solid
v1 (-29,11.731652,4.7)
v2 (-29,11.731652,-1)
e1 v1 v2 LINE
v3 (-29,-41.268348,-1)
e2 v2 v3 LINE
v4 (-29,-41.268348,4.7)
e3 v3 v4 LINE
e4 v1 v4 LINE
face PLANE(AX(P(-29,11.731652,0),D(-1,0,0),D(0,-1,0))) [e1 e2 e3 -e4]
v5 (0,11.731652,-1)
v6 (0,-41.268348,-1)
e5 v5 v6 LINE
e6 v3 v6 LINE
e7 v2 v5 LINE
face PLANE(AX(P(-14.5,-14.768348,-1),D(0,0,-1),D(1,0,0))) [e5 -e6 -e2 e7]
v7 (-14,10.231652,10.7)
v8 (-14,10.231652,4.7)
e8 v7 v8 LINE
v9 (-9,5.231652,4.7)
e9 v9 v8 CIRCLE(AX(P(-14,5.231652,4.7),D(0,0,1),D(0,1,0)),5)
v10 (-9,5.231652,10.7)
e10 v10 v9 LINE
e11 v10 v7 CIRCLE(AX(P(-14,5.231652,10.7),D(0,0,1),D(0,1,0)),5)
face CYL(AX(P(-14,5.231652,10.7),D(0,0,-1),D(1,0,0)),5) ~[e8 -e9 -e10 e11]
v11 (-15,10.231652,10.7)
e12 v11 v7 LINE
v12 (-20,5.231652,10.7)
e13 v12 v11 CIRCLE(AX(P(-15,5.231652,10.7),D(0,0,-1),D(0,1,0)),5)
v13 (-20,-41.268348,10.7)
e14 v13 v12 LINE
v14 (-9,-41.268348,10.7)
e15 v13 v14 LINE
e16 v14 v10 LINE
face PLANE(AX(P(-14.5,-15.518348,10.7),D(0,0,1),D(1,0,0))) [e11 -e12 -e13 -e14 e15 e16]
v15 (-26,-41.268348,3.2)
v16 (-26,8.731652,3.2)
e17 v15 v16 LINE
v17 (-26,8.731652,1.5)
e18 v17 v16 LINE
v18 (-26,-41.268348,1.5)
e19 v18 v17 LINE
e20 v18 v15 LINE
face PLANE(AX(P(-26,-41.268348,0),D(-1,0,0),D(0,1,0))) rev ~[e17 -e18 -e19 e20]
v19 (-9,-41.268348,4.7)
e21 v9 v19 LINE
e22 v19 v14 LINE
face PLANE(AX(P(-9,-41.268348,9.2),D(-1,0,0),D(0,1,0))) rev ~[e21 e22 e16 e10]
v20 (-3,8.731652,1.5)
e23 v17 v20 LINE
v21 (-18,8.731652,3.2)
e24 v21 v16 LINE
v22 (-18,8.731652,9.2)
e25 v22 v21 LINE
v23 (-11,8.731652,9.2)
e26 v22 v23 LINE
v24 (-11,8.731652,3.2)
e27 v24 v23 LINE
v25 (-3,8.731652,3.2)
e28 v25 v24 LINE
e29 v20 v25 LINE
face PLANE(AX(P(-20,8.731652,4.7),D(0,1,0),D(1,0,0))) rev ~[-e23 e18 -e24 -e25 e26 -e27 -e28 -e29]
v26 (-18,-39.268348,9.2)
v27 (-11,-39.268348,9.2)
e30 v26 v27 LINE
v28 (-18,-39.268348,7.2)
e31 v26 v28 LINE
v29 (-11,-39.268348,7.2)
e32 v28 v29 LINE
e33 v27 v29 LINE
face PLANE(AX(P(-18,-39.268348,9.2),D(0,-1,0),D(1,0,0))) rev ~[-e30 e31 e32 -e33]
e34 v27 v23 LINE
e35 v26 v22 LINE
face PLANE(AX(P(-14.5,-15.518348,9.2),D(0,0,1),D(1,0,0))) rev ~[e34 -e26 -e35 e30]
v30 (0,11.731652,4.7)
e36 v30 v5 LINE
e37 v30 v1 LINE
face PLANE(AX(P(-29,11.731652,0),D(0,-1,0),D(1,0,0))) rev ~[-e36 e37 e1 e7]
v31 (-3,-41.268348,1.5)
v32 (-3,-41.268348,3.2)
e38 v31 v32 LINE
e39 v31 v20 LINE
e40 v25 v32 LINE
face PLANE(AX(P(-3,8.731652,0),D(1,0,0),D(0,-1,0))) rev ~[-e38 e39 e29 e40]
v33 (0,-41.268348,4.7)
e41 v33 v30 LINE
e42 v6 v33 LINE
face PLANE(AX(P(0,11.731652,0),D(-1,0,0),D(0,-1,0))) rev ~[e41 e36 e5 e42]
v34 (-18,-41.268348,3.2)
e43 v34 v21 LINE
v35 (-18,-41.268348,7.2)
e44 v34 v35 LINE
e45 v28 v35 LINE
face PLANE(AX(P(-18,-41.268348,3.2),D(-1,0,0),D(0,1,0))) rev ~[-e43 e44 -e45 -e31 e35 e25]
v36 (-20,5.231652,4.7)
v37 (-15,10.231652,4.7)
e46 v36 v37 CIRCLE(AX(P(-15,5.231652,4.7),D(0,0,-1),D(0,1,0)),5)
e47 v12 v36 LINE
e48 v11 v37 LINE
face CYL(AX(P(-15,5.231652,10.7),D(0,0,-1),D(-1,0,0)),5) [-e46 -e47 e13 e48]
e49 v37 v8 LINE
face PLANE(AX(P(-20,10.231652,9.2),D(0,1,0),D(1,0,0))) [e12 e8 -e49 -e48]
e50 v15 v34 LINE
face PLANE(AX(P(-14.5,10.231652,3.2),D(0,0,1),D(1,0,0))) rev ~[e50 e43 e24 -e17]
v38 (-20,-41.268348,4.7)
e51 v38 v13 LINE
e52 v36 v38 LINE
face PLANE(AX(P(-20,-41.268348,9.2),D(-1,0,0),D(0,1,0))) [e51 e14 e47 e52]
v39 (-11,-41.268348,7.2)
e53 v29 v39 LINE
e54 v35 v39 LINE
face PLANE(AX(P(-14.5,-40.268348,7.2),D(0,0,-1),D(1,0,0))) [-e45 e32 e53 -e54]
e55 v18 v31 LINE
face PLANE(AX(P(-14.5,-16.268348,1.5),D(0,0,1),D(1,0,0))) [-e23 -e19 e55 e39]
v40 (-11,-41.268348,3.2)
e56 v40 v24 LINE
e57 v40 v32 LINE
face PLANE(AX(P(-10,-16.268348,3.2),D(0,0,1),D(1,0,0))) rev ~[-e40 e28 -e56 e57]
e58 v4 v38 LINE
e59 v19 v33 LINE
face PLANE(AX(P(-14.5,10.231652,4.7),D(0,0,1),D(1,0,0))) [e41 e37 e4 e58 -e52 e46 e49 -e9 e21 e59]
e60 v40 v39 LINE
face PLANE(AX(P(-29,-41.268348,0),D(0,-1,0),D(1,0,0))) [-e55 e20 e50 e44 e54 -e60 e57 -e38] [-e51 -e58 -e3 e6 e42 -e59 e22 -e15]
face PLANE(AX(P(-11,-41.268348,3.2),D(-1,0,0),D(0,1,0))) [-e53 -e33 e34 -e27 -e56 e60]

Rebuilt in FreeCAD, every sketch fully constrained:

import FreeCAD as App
import Part
import Sketcher

V = App.Vector
Q = App.Units.Quantity


def edges_at(feature, points):
    """Names of the edges that pass closest to the given points."""
    edges = feature.Shape.Edges
    near = lambda p: min(range(len(edges)), key=lambda i: edges[i].distToShape(Part.Vertex(*p))[0])
    return sorted({f"Edge{near(p) + 1}" for p in points})

doc = App.newDocument("Part")
params = doc.addObject("Spreadsheet::Sheet", "Params")
for row, (alias, value) in enumerate([
    ("sketch1_width", "23 mm"),
    ("sketch1_height", "50 mm"),
    ("pad1_length", "1.5 mm"),
    ("sketch2_width", "23 mm"),
    ("sketch2_width2", "3 mm"),
    ("sketch2_height", "50 mm"),
    ("sketch2_height2", "53 mm"),
    ("pad2_length", "3.2 mm"),
    ("sketch3_width", "9 mm"),
    ("sketch3_width2", "11 mm"),
    ("sketch3_height", "53 mm"),
    ("sketch3_height2", "50 mm"),
    ("pad3_length", "1.5 mm"),
    ("sketch4_width", "2 mm"),
    ("sketch4_height", "50 mm"),
    ("pad4_length", "6 mm"),
    ("sketch5_width", "11 mm"),
    ("sketch5_height", "1.5 mm"),
    ("pad5_length", "4.5 mm"),
    ("sketch6_width", "11 mm"),
    ("sketch6_height", "51.5 mm"),
    ("pad6_length", "1.5 mm"),
    ("fillet_radius", "5 mm"),
    ("sketch7_width", "29 mm"),
    ("sketch7_height", "53 mm"),
    ("pad7_length", "1 mm"),
    ("sketch8_width", "7 mm"),
    ("sketch8_height", "2 mm"),
    ("pad8_length", "2 mm"),
], start=1):
    params.set(f"A{row}", alias)
    params.set(f"B{row}", "=" + value)
    params.setAlias(f"B{row}", alias)

body = doc.addObject("PartDesign::Body", "Body")

# Sketch on XY plane
sketch1 = doc.addObject("Sketcher::SketchObject", "Sketch")
body.addObject(sketch1)
sketch1.AttachmentSupport = (doc.XY_Plane, [""])
sketch1.MapMode = "FlatFace"
sketch1.addGeometry(Part.LineSegment(V(-26, 9, 0), V(-26, -41, 0)), False)
sketch1.addGeometry(Part.LineSegment(V(-26, -41, 0), V(-3, -41, 0)), False)
sketch1.addGeometry(Part.LineSegment(V(-3, -41, 0), V(-3, 9, 0)), False)
sketch1.addGeometry(Part.LineSegment(V(-3, 9, 0), V(-26, 9, 0)), False)
sketch1.addConstraint(Sketcher.Constraint("Coincident", 0, 2, 1, 1))
sketch1.addConstraint(Sketcher.Constraint("Coincident", 1, 2, 2, 1))
sketch1.addConstraint(Sketcher.Constraint("Coincident", 2, 2, 3, 1))
sketch1.addConstraint(Sketcher.Constraint("Coincident", 3, 2, 0, 1))
sketch1.addConstraint(Sketcher.Constraint("Vertical", 0))
sketch1.addConstraint(Sketcher.Constraint("Horizontal", 1))
sketch1.addConstraint(Sketcher.Constraint("Vertical", 2))
sketch1.addConstraint(Sketcher.Constraint("Horizontal", 3))
sketch1.addConstraint(Sketcher.Constraint("DistanceX", 1, 1, 1, 2, Q("23 mm")))
sketch1.addConstraint(Sketcher.Constraint("DistanceY", 0, 2, 0, 1, Q("50 mm")))
sketch1.addConstraint(Sketcher.Constraint("DistanceX", 0, 2, -1, 1, Q("26 mm")))
sketch1.addConstraint(Sketcher.Constraint("DistanceY", 0, 2, -1, 1, Q("41.268348 mm")))
sketch1.setExpression("Constraints[8]", "Params.sketch1_width")
sketch1.setExpression("Constraints[9]", "Params.sketch1_height")
pad1 = doc.addObject("PartDesign::Pad", "Pad")
body.addObject(pad1)
pad1.Profile = sketch1
pad1.setExpression("Length", "Params.pad1_length")

# Sketch on XY plane
sketch2 = doc.addObject("Sketcher::SketchObject", "Sketch001")
body.addObject(sketch2)
sketch2.AttachmentSupport = (doc.XY_Plane, [""])
sketch2.MapMode = "FlatFace"
sketch2.addGeometry(Part.LineSegment(V(-26, -41.3, 0), V(-26, 8.7, 0)), False)
sketch2.addGeometry(Part.LineSegment(V(-26, 8.7, 0), V(-3, 8.7, 0)), False)
sketch2.addGeometry(Part.LineSegment(V(-3, 8.7, 0), V(-3, -41.3, 0)), False)
sketch2.addGeometry(Part.LineSegment(V(-3, -41.3, 0), V(0, -41.3, 0)), False)
sketch2.addGeometry(Part.LineSegment(V(0, -41.3, 0), V(0, 11.7, 0)), False)
sketch2.addGeometry(Part.LineSegment(V(0, 11.7, 0), V(-29, 11.7, 0)), False)
sketch2.addGeometry(Part.LineSegment(V(-29, 11.7, 0), V(-29, -41.3, 0)), False)
sketch2.addGeometry(Part.LineSegment(V(-29, -41.3, 0), V(-26, -41.3, 0)), False)
sketch2.addConstraint(Sketcher.Constraint("Coincident", 0, 2, 1, 1))
sketch2.addConstraint(Sketcher.Constraint("Coincident", 1, 2, 2, 1))
sketch2.addConstraint(Sketcher.Constraint("Coincident", 2, 2, 3, 1))
sketch2.addConstraint(Sketcher.Constraint("Coincident", 3, 2, 4, 1))
sketch2.addConstraint(Sketcher.Constraint("Coincident", 4, 2, 5, 1))
sketch2.addConstraint(Sketcher.Constraint("Coincident", 5, 2, 6, 1))
sketch2.addConstraint(Sketcher.Constraint("Coincident", 6, 2, 7, 1))
sketch2.addConstraint(Sketcher.Constraint("Coincident", 7, 2, 0, 1))
sketch2.addConstraint(Sketcher.Constraint("Vertical", 0))
sketch2.addConstraint(Sketcher.Constraint("Horizontal", 1))
sketch2.addConstraint(Sketcher.Constraint("Vertical", 2))
sketch2.addConstraint(Sketcher.Constraint("Horizontal", 3))
sketch2.addConstraint(Sketcher.Constraint("Vertical", 4))
sketch2.addConstraint(Sketcher.Constraint("Horizontal", 5))
sketch2.addConstraint(Sketcher.Constraint("Vertical", 6))
sketch2.addConstraint(Sketcher.Constraint("Horizontal", 7))
sketch2.addConstraint(Sketcher.Constraint("PointOnObject", 3, 2, -2))
sketch2.addConstraint(Sketcher.Constraint("Horizontal", 3, 2, 6, 2))
sketch2.addConstraint(Sketcher.Constraint("Equal", 3, 7))
sketch2.addConstraint(Sketcher.Constraint("DistanceX", 1, 1, 1, 2, Q("23 mm")))
sketch2.addConstraint(Sketcher.Constraint("DistanceX", 3, 1, 3, 2, Q("3 mm")))
sketch2.addConstraint(Sketcher.Constraint("DistanceY", 0, 1, 0, 2, Q("50 mm")))
sketch2.addConstraint(Sketcher.Constraint("DistanceY", 4, 1, 4, 2, Q("53 mm")))
sketch2.addConstraint(Sketcher.Constraint("DistanceY", -1, 1, 0, 2, Q("8.731652 mm")))
sketch2.setExpression("Constraints[19]", "Params.sketch2_width")
sketch2.setExpression("Constraints[20]", "Params.sketch2_width2")
sketch2.setExpression("Constraints[21]", "Params.sketch2_height")
sketch2.setExpression("Constraints[22]", "Params.sketch2_height2")
pad2 = doc.addObject("PartDesign::Pad", "Pad001")
body.addObject(pad2)
pad2.Profile = sketch2
pad2.setExpression("Length", "Params.pad2_length")

# Sketch on XY plane
sketch3 = doc.addObject("Sketcher::SketchObject", "Sketch002")
body.addObject(sketch3)
sketch3.AttachmentSupport = (doc.XY_Plane, [""])
sketch3.MapMode = "FlatFace"
sketch3.AttachmentOffset = App.Placement(V(0, 0, 3.2), App.Rotation())
sketch3.addGeometry(Part.LineSegment(V(-29, 12, 0), V(-29, -41, 0)), False)
sketch3.addGeometry(Part.LineSegment(V(-29, -41, 0), V(-20, -41, 0)), False)
sketch3.addGeometry(Part.LineSegment(V(-20, -41, 0), V(-20, 9, 0)), False)
sketch3.addGeometry(Part.LineSegment(V(-20, 9, 0), V(-9, 9, 0)), False)
sketch3.addGeometry(Part.LineSegment(V(-9, 9, 0), V(-9, -41, 0)), False)
sketch3.addGeometry(Part.LineSegment(V(-9, -41, 0), V(0, -41, 0)), False)
sketch3.addGeometry(Part.LineSegment(V(0, -41, 0), V(0, 12, 0)), False)
sketch3.addGeometry(Part.LineSegment(V(0, 12, 0), V(-29, 12, 0)), False)
sketch3.addConstraint(Sketcher.Constraint("Coincident", 0, 2, 1, 1))
sketch3.addConstraint(Sketcher.Constraint("Coincident", 1, 2, 2, 1))
sketch3.addConstraint(Sketcher.Constraint("Coincident", 2, 2, 3, 1))
sketch3.addConstraint(Sketcher.Constraint("Coincident", 3, 2, 4, 1))
sketch3.addConstraint(Sketcher.Constraint("Coincident", 4, 2, 5, 1))
sketch3.addConstraint(Sketcher.Constraint("Coincident", 5, 2, 6, 1))
sketch3.addConstraint(Sketcher.Constraint("Coincident", 6, 2, 7, 1))
sketch3.addConstraint(Sketcher.Constraint("Coincident", 7, 2, 0, 1))
sketch3.addConstraint(Sketcher.Constraint("Vertical", 0))
sketch3.addConstraint(Sketcher.Constraint("Horizontal", 1))
sketch3.addConstraint(Sketcher.Constraint("Vertical", 2))
sketch3.addConstraint(Sketcher.Constraint("Horizontal", 3))
sketch3.addConstraint(Sketcher.Constraint("Vertical", 4))
sketch3.addConstraint(Sketcher.Constraint("Horizontal", 5))
sketch3.addConstraint(Sketcher.Constraint("Vertical", 6))
sketch3.addConstraint(Sketcher.Constraint("Horizontal", 7))
sketch3.addConstraint(Sketcher.Constraint("PointOnObject", 5, 2, -2))
sketch3.addConstraint(Sketcher.Constraint("Horizontal", 1, 2, 4, 2))
sketch3.addConstraint(Sketcher.Constraint("Equal", 1, 5))
sketch3.addConstraint(Sketcher.Constraint("DistanceX", 1, 1, 1, 2, Q("9 mm")))
sketch3.addConstraint(Sketcher.Constraint("DistanceX", 3, 1, 3, 2, Q("11 mm")))
sketch3.addConstraint(Sketcher.Constraint("DistanceY", 0, 2, 0, 1, Q("53 mm")))
sketch3.addConstraint(Sketcher.Constraint("DistanceY", 2, 1, 2, 2, Q("50 mm")))
sketch3.addConstraint(Sketcher.Constraint("DistanceY", 0, 2, -1, 1, Q("41.268348 mm")))
sketch3.setExpression("Constraints[19]", "Params.sketch3_width")
sketch3.setExpression("Constraints[20]", "Params.sketch3_width2")
sketch3.setExpression("Constraints[21]", "Params.sketch3_height")
sketch3.setExpression("Constraints[22]", "Params.sketch3_height2")
pad3 = doc.addObject("PartDesign::Pad", "Pad002")
body.addObject(pad3)
pad3.Profile = sketch3
pad3.setExpression("Length", "Params.pad3_length")

# Sketch on XY plane
sketch4 = doc.addObject("Sketcher::SketchObject", "Sketch003")
body.addObject(sketch4)
sketch4.AttachmentSupport = (doc.XY_Plane, [""])
sketch4.MapMode = "FlatFace"
sketch4.AttachmentOffset = App.Placement(V(0, 0, 3.2), App.Rotation())
sketch4.addGeometry(Part.LineSegment(V(-11, 8.7, 0), V(-11, -41.3, 0)), False)
sketch4.addGeometry(Part.LineSegment(V(-11, -41.3, 0), V(-9, -41.3, 0)), False)
sketch4.addGeometry(Part.LineSegment(V(-9, -41.3, 0), V(-9, 8.7, 0)), False)
sketch4.addGeometry(Part.LineSegment(V(-9, 8.7, 0), V(-11, 8.7, 0)), False)
sketch4.addGeometry(Part.LineSegment(V(-20, 8.7, 0), V(-20, -41.3, 0)), False)
sketch4.addGeometry(Part.LineSegment(V(-20, -41.3, 0), V(-18, -41.3, 0)), False)
sketch4.addGeometry(Part.LineSegment(V(-18, -41.3, 0), V(-18, 8.7, 0)), False)
sketch4.addGeometry(Part.LineSegment(V(-18, 8.7, 0), V(-20, 8.7, 0)), False)
sketch4.addConstraint(Sketcher.Constraint("Coincident", 0, 2, 1, 1))
sketch4.addConstraint(Sketcher.Constraint("Coincident", 1, 2, 2, 1))
sketch4.addConstraint(Sketcher.Constraint("Coincident", 2, 2, 3, 1))
sketch4.addConstraint(Sketcher.Constraint("Coincident", 3, 2, 0, 1))
sketch4.addConstraint(Sketcher.Constraint("Coincident", 4, 2, 5, 1))
sketch4.addConstraint(Sketcher.Constraint("Coincident", 5, 2, 6, 1))
sketch4.addConstraint(Sketcher.Constraint("Coincident", 6, 2, 7, 1))
sketch4.addConstraint(Sketcher.Constraint("Coincident", 7, 2, 4, 1))
sketch4.addConstraint(Sketcher.Constraint("Vertical", 0))
sketch4.addConstraint(Sketcher.Constraint("Horizontal", 1))
sketch4.addConstraint(Sketcher.Constraint("Vertical", 2))
sketch4.addConstraint(Sketcher.Constraint("Horizontal", 3))
sketch4.addConstraint(Sketcher.Constraint("Vertical", 4))
sketch4.addConstraint(Sketcher.Constraint("Horizontal", 5))
sketch4.addConstraint(Sketcher.Constraint("Vertical", 6))
sketch4.addConstraint(Sketcher.Constraint("Horizontal", 7))
sketch4.addConstraint(Sketcher.Constraint("Horizontal", 1, 2, 4, 2))
sketch4.addConstraint(Sketcher.Constraint("Horizontal", 3, 2, 6, 2))
sketch4.addConstraint(Sketcher.Constraint("Equal", 3, 5))
sketch4.addConstraint(Sketcher.Constraint("DistanceX", 1, 1, 1, 2, Q("2 mm")))
sketch4.addConstraint(Sketcher.Constraint("DistanceY", 0, 2, 0, 1, Q("50 mm")))
sketch4.addConstraint(Sketcher.Constraint("DistanceX", 0, 2, -1, 1, Q("11 mm")))
sketch4.addConstraint(Sketcher.Constraint("DistanceX", 4, 2, -1, 1, Q("20 mm")))
sketch4.addConstraint(Sketcher.Constraint("DistanceY", 0, 2, -1, 1, Q("41.268348 mm")))
sketch4.setExpression("Constraints[19]", "Params.sketch4_width")
sketch4.setExpression("Constraints[20]", "Params.sketch4_height")
pad4 = doc.addObject("PartDesign::Pad", "Pad003")
body.addObject(pad4)
pad4.Profile = sketch4
pad4.setExpression("Length", "Params.pad4_length")

# Sketch on XY plane
sketch5 = doc.addObject("Sketcher::SketchObject", "Sketch004")
body.addObject(sketch5)
sketch5.AttachmentSupport = (doc.XY_Plane, [""])
sketch5.MapMode = "FlatFace"
sketch5.AttachmentOffset = App.Placement(V(0, 0, 4.7), App.Rotation())
sketch5.addGeometry(Part.LineSegment(V(-20, 10.2, 0), V(-20, 8.7, 0)), False)
sketch5.addGeometry(Part.LineSegment(V(-20, 8.7, 0), V(-9, 8.7, 0)), False)
sketch5.addGeometry(Part.LineSegment(V(-9, 8.7, 0), V(-9, 10.2, 0)), False)
sketch5.addGeometry(Part.LineSegment(V(-9, 10.2, 0), V(-20, 10.2, 0)), False)
sketch5.addConstraint(Sketcher.Constraint("Coincident", 0, 2, 1, 1))
sketch5.addConstraint(Sketcher.Constraint("Coincident", 1, 2, 2, 1))
sketch5.addConstraint(Sketcher.Constraint("Coincident", 2, 2, 3, 1))
sketch5.addConstraint(Sketcher.Constraint("Coincident", 3, 2, 0, 1))
sketch5.addConstraint(Sketcher.Constraint("Vertical", 0))
sketch5.addConstraint(Sketcher.Constraint("Horizontal", 1))
sketch5.addConstraint(Sketcher.Constraint("Vertical", 2))
sketch5.addConstraint(Sketcher.Constraint("Horizontal", 3))
sketch5.addConstraint(Sketcher.Constraint("DistanceX", 1, 1, 1, 2, Q("11 mm")))
sketch5.addConstraint(Sketcher.Constraint("DistanceY", 0, 2, 0, 1, Q("1.5 mm")))
sketch5.addConstraint(Sketcher.Constraint("DistanceX", 0, 2, -1, 1, Q("20 mm")))
sketch5.addConstraint(Sketcher.Constraint("DistanceY", -1, 1, 0, 2, Q("8.731652 mm")))
sketch5.setExpression("Constraints[8]", "Params.sketch5_width")
sketch5.setExpression("Constraints[9]", "Params.sketch5_height")
pad5 = doc.addObject("PartDesign::Pad", "Pad004")
body.addObject(pad5)
pad5.Profile = sketch5
pad5.setExpression("Length", "Params.pad5_length")

# Sketch on XY plane
sketch6 = doc.addObject("Sketcher::SketchObject", "Sketch005")
body.addObject(sketch6)
sketch6.AttachmentSupport = (doc.XY_Plane, [""])
sketch6.MapMode = "FlatFace"
sketch6.AttachmentOffset = App.Placement(V(0, 0, 9.2), App.Rotation())
sketch6.addGeometry(Part.LineSegment(V(-20, 10, 0), V(-20, -41, 0)), False)
sketch6.addGeometry(Part.LineSegment(V(-20, -41, 0), V(-9, -41, 0)), False)
sketch6.addGeometry(Part.LineSegment(V(-9, -41, 0), V(-9, 10, 0)), False)
sketch6.addGeometry(Part.LineSegment(V(-9, 10, 0), V(-20, 10, 0)), False)
sketch6.addConstraint(Sketcher.Constraint("Coincident", 0, 2, 1, 1))
sketch6.addConstraint(Sketcher.Constraint("Coincident", 1, 2, 2, 1))
sketch6.addConstraint(Sketcher.Constraint("Coincident", 2, 2, 3, 1))
sketch6.addConstraint(Sketcher.Constraint("Coincident", 3, 2, 0, 1))
sketch6.addConstraint(Sketcher.Constraint("Vertical", 0))
sketch6.addConstraint(Sketcher.Constraint("Horizontal", 1))
sketch6.addConstraint(Sketcher.Constraint("Vertical", 2))
sketch6.addConstraint(Sketcher.Constraint("Horizontal", 3))
sketch6.addConstraint(Sketcher.Constraint("DistanceX", 1, 1, 1, 2, Q("11 mm")))
sketch6.addConstraint(Sketcher.Constraint("DistanceY", 0, 2, 0, 1, Q("51.5 mm")))
sketch6.addConstraint(Sketcher.Constraint("DistanceX", 0, 2, -1, 1, Q("20 mm")))
sketch6.addConstraint(Sketcher.Constraint("DistanceY", 0, 2, -1, 1, Q("41.268348 mm")))
sketch6.setExpression("Constraints[8]", "Params.sketch6_width")
sketch6.setExpression("Constraints[9]", "Params.sketch6_height")
pad6 = doc.addObject("PartDesign::Pad", "Pad005")
body.addObject(pad6)
pad6.Profile = sketch6
pad6.setExpression("Length", "Params.pad6_length")
doc.recompute()

fillet = doc.addObject("PartDesign::Fillet", "Fillet")
body.addObject(fillet)
fillet.Base = (pad6, edges_at(pad6, [(-20, 10.232, 7.7), (-9, 10.232, 7.7)]))
fillet.setExpression("Radius", "Params.fillet_radius")

# Sketch on XY plane
sketch7 = doc.addObject("Sketcher::SketchObject", "Sketch006")
body.addObject(sketch7)
sketch7.AttachmentSupport = (doc.XY_Plane, [""])
sketch7.MapMode = "FlatFace"
sketch7.addGeometry(Part.LineSegment(V(-29, -41, 0), V(-29, 12, 0)), False)
sketch7.addGeometry(Part.LineSegment(V(-29, 12, 0), V(0, 12, 0)), False)
sketch7.addGeometry(Part.LineSegment(V(0, 12, 0), V(0, -41, 0)), False)
sketch7.addGeometry(Part.LineSegment(V(0, -41, 0), V(-29, -41, 0)), False)
sketch7.addConstraint(Sketcher.Constraint("Coincident", 0, 2, 1, 1))
sketch7.addConstraint(Sketcher.Constraint("Coincident", 1, 2, 2, 1))
sketch7.addConstraint(Sketcher.Constraint("Coincident", 2, 2, 3, 1))
sketch7.addConstraint(Sketcher.Constraint("Coincident", 3, 2, 0, 1))
sketch7.addConstraint(Sketcher.Constraint("Vertical", 0))
sketch7.addConstraint(Sketcher.Constraint("Horizontal", 1))
sketch7.addConstraint(Sketcher.Constraint("Vertical", 2))
sketch7.addConstraint(Sketcher.Constraint("Horizontal", 3))
sketch7.addConstraint(Sketcher.Constraint("PointOnObject", 1, 2, -2))
sketch7.addConstraint(Sketcher.Constraint("DistanceX", 1, 1, 1, 2, Q("29 mm")))
sketch7.addConstraint(Sketcher.Constraint("DistanceY", 0, 1, 0, 2, Q("53 mm")))
sketch7.addConstraint(Sketcher.Constraint("DistanceY", -1, 1, 0, 2, Q("11.731652 mm")))
sketch7.setExpression("Constraints[9]", "Params.sketch7_width")
sketch7.setExpression("Constraints[10]", "Params.sketch7_height")
pad7 = doc.addObject("PartDesign::Pad", "Pad006")
body.addObject(pad7)
pad7.Profile = sketch7
pad7.setExpression("Length", "Params.pad7_length")
pad7.Reversed = True

# Sketch on XY plane
sketch8 = doc.addObject("Sketcher::SketchObject", "Sketch007")
body.addObject(sketch8)
sketch8.AttachmentSupport = (doc.XY_Plane, [""])
sketch8.MapMode = "FlatFace"
sketch8.AttachmentOffset = App.Placement(V(0, 0, 9.2), App.Rotation())
sketch8.addGeometry(Part.LineSegment(V(-18, -41.3, 0), V(-18, -39.3, 0)), False)
sketch8.addGeometry(Part.LineSegment(V(-18, -39.3, 0), V(-11, -39.3, 0)), False)
sketch8.addGeometry(Part.LineSegment(V(-11, -39.3, 0), V(-11, -41.3, 0)), False)
sketch8.addGeometry(Part.LineSegment(V(-11, -41.3, 0), V(-18, -41.3, 0)), False)
sketch8.addConstraint(Sketcher.Constraint("Coincident", 0, 2, 1, 1))
sketch8.addConstraint(Sketcher.Constraint("Coincident", 1, 2, 2, 1))
sketch8.addConstraint(Sketcher.Constraint("Coincident", 2, 2, 3, 1))
sketch8.addConstraint(Sketcher.Constraint("Coincident", 3, 2, 0, 1))
sketch8.addConstraint(Sketcher.Constraint("Vertical", 0))
sketch8.addConstraint(Sketcher.Constraint("Horizontal", 1))
sketch8.addConstraint(Sketcher.Constraint("Vertical", 2))
sketch8.addConstraint(Sketcher.Constraint("Horizontal", 3))
sketch8.addConstraint(Sketcher.Constraint("DistanceX", 1, 1, 1, 2, Q("7 mm")))
sketch8.addConstraint(Sketcher.Constraint("DistanceY", 0, 1, 0, 2, Q("2 mm")))
sketch8.addConstraint(Sketcher.Constraint("DistanceX", 0, 2, -1, 1, Q("18 mm")))
sketch8.addConstraint(Sketcher.Constraint("DistanceY", 0, 2, -1, 1, Q("39.268348 mm")))
sketch8.setExpression("Constraints[8]", "Params.sketch8_width")
sketch8.setExpression("Constraints[9]", "Params.sketch8_height")
pad8 = doc.addObject("PartDesign::Pad", "Pad007")
body.addObject(pad8)
pad8.Profile = sketch8
pad8.setExpression("Length", "Params.pad8_length")
pad8.Reversed = True

doc.recompute()
